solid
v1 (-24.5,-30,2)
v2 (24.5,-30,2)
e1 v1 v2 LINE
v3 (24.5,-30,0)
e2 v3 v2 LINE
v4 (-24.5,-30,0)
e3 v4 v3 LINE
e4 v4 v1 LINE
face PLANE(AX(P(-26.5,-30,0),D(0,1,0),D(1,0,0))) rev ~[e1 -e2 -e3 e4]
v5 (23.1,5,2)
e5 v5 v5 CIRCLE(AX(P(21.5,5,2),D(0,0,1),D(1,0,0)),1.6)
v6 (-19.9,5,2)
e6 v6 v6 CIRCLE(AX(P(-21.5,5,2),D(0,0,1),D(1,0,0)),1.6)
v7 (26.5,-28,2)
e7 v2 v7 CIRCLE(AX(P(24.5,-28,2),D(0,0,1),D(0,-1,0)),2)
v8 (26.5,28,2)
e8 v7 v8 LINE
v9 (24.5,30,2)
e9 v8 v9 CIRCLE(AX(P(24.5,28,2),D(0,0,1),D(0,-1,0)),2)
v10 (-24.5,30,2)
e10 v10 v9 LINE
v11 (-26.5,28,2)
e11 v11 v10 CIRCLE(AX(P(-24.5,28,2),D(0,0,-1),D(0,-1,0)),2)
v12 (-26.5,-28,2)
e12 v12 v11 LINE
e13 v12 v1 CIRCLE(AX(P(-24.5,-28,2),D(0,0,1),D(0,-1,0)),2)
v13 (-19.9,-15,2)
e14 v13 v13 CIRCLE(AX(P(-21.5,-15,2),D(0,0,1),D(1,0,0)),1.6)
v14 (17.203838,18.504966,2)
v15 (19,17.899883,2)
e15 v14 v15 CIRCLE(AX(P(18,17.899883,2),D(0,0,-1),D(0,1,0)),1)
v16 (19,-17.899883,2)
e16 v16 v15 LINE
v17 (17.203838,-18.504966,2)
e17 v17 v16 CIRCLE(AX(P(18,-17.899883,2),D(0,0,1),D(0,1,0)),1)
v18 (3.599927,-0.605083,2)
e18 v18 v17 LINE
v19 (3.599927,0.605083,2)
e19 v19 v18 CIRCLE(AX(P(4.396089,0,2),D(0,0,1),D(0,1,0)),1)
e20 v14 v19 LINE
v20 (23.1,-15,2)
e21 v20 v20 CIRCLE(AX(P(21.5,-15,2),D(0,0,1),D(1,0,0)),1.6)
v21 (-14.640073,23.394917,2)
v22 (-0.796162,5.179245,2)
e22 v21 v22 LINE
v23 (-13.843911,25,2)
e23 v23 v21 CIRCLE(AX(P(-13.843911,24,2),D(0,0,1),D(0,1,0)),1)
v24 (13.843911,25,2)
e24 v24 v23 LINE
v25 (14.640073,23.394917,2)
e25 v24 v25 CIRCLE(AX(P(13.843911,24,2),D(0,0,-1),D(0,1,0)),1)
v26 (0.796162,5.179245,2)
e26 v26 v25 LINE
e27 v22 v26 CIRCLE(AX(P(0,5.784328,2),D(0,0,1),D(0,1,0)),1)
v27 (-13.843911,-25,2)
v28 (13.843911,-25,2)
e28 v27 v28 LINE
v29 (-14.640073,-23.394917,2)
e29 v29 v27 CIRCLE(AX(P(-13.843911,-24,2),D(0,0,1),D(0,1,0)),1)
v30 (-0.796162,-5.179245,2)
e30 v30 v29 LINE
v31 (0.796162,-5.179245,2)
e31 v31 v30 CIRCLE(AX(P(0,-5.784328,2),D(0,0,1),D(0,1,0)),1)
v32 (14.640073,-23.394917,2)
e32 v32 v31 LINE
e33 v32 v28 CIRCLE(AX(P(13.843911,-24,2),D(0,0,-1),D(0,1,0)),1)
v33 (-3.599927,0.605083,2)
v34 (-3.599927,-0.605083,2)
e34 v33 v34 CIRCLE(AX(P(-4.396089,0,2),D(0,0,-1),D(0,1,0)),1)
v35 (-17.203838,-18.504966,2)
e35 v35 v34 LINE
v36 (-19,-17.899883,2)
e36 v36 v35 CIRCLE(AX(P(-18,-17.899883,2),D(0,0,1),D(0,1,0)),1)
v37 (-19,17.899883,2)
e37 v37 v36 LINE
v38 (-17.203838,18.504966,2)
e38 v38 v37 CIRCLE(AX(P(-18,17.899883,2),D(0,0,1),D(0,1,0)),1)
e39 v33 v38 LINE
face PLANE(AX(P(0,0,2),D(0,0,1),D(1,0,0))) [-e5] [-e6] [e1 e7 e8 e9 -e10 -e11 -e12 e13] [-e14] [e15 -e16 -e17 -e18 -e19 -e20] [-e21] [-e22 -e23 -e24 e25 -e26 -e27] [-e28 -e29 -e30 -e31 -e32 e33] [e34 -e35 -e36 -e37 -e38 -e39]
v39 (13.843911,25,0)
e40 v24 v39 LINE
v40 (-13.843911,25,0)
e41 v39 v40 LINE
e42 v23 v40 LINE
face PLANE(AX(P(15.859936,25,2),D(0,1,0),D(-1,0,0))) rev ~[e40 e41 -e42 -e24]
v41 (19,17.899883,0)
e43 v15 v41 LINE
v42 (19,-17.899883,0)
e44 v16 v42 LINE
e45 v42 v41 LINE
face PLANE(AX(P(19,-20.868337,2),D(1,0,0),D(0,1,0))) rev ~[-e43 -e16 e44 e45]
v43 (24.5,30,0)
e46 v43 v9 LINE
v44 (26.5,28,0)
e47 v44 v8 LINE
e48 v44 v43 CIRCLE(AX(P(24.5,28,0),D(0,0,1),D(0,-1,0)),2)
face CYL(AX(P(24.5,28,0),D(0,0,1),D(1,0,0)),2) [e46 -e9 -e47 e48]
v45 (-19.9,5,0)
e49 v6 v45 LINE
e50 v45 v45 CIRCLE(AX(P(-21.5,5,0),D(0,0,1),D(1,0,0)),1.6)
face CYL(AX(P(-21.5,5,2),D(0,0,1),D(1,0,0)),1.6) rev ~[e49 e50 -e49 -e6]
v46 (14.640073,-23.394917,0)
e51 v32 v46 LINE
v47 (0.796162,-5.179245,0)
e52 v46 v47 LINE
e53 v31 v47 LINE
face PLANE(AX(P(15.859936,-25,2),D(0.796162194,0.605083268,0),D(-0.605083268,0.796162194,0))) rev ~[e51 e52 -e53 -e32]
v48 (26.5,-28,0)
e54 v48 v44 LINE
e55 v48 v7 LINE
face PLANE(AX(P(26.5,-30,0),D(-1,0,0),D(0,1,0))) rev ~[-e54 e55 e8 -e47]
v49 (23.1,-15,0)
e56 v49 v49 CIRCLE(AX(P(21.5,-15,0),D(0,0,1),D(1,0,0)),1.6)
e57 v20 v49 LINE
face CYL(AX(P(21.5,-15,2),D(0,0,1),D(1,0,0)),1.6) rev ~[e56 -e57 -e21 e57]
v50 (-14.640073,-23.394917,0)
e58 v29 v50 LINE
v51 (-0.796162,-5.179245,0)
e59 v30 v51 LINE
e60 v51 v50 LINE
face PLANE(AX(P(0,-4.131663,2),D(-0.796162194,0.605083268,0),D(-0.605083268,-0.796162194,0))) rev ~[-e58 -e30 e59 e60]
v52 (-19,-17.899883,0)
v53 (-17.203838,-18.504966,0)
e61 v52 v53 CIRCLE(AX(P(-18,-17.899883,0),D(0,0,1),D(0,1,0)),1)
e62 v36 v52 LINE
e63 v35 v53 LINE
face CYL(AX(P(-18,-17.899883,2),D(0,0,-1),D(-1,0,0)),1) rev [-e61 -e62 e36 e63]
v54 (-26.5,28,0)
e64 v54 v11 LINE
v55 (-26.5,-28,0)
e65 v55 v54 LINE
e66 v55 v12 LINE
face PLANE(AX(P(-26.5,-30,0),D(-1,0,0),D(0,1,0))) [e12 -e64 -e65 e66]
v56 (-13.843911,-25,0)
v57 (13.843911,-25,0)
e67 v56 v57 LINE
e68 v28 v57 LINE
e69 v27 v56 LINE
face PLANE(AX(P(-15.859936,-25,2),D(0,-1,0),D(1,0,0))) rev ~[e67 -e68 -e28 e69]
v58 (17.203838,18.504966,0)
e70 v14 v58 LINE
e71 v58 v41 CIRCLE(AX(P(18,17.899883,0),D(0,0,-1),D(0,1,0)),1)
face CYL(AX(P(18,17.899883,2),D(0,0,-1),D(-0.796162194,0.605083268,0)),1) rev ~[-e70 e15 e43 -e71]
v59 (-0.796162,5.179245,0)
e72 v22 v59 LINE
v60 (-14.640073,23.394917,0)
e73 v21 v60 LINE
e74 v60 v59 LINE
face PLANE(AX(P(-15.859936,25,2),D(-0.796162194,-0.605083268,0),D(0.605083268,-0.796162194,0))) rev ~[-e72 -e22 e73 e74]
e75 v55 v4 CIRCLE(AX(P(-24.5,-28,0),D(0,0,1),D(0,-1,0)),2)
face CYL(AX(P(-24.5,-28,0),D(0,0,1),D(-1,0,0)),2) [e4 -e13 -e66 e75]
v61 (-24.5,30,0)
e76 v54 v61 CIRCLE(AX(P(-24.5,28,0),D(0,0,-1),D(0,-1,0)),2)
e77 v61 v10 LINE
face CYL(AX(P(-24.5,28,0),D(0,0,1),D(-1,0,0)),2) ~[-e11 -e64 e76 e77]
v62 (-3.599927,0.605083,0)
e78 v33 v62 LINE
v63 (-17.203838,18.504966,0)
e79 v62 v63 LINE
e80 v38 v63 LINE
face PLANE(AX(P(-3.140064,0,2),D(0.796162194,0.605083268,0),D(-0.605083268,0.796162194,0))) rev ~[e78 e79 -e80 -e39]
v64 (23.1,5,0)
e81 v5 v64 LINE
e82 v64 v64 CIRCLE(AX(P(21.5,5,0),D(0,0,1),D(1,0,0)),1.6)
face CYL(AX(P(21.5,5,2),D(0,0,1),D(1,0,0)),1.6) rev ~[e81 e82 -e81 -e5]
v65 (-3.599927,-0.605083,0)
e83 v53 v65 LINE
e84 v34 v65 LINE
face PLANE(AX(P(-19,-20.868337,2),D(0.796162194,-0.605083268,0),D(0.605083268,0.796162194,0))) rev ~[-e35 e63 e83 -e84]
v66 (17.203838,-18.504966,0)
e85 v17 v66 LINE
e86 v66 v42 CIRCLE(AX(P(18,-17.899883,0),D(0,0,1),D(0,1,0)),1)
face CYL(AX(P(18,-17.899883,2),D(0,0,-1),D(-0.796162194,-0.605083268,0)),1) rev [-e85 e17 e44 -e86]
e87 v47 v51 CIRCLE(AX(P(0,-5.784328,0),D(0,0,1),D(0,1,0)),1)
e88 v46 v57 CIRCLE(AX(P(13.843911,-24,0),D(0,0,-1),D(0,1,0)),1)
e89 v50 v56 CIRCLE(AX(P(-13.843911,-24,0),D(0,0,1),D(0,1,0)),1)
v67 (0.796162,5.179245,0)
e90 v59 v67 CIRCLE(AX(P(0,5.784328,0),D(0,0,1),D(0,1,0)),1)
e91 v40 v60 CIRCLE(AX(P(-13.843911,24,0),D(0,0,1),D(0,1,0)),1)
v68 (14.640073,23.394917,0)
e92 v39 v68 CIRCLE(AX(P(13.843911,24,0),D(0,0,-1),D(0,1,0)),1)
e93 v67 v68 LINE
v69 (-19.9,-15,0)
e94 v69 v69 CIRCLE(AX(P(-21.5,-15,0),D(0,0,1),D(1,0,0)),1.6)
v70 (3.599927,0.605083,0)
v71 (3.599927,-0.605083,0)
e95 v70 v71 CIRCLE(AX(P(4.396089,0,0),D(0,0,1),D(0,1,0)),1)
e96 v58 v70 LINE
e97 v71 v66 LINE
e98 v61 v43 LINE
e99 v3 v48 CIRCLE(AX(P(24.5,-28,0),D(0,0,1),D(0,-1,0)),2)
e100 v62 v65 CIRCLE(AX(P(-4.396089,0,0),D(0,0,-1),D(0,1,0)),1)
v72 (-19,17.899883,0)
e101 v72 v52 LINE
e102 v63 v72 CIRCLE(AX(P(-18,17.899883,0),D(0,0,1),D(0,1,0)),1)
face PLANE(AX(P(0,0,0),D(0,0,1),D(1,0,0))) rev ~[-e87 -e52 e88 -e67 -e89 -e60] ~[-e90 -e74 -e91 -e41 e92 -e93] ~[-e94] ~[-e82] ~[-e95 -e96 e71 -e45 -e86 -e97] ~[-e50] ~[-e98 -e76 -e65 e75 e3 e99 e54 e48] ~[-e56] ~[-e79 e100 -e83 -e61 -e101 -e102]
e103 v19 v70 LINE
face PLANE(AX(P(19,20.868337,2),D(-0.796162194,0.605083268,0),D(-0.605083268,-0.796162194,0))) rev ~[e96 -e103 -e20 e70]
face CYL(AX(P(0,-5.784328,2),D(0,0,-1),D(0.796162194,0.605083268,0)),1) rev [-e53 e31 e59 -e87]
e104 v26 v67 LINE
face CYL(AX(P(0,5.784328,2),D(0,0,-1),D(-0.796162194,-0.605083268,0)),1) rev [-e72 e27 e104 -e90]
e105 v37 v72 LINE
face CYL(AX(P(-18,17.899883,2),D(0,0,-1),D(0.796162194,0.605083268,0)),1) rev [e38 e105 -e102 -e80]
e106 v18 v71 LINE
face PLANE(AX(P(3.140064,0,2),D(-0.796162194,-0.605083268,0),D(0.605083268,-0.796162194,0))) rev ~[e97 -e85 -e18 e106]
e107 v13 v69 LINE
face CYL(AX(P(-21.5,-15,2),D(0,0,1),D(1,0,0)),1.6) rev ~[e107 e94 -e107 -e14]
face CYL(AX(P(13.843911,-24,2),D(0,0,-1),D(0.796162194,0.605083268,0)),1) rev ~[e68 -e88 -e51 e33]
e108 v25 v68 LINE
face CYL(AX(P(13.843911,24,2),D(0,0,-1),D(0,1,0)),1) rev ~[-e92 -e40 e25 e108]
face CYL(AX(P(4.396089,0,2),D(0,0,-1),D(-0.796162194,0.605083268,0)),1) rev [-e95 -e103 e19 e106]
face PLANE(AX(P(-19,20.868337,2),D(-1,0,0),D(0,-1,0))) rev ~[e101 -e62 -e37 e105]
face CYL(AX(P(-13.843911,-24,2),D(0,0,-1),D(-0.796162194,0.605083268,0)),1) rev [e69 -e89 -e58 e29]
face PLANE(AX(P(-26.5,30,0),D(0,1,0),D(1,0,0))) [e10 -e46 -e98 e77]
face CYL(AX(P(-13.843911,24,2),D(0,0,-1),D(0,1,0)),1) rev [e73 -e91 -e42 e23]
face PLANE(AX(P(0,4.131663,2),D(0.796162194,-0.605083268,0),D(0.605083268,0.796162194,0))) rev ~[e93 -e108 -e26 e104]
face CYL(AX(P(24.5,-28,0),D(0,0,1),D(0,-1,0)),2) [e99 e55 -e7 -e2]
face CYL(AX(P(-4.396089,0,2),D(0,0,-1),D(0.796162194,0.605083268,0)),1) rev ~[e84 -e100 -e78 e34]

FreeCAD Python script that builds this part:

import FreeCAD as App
import Part
import Sketcher
from FreeCAD import Vector
Q = App.Units.Quantity


def edges_at(feature, points):
    """Names of the edges that pass closest to the given points."""
    edges = feature.Shape.Edges
    near = lambda p: min(range(len(edges)), key=lambda i: edges[i].distToShape(Part.Vertex(*p))[0])
    return sorted({f"Edge{near(p) + 1}" for p in points})


def add_polygon(sketch, points):
    """Adds a closed chain of lines whose ends are joined by coincident constraints."""
    first, n = sketch.GeometryCount, len(points)
    for a, b in zip(points, points[1:] + points[:1]):
        sketch.addGeometry(Part.LineSegment(App.Vector(*a, 0), App.Vector(*b, 0)), False)
    for i in range(n):
        sketch.addConstraint(Sketcher.Constraint("Coincident", first + i, 2, first + (i + 1) % n, 1))

doc = App.newDocument("Part")
body = doc.addObject("PartDesign::Body", "Body")

sketch1 = body.newObject("Sketcher::SketchObject", "Sketch")
sketch1.AttachmentSupport = (doc.getObject("XY_Plane"), [""])
sketch1.MapMode = "FlatFace"
add_polygon(sketch1, [(-26, 30), (-26, -30), (26, -30), (26, 30)])
sketch1.addConstraint(Sketcher.Constraint("Vertical", 0))
sketch1.addConstraint(Sketcher.Constraint("Horizontal", 1))
sketch1.addConstraint(Sketcher.Constraint("Vertical", 2))
sketch1.addConstraint(Sketcher.Constraint("Horizontal", 3))
sketch1.addConstraint(Sketcher.Constraint("Symmetric", 0, 2, 2, 2, -1, 1))
sketch1.addConstraint(Sketcher.Constraint("DistanceX", 1, 1, 1, 2, Q("53 mm")))
sketch1.addConstraint(Sketcher.Constraint("DistanceY", 0, 2, 0, 1, Q("60 mm")))
pad1 = body.newObject("PartDesign::Pad", "Pad")
pad1.Profile = sketch1
pad1.Length = 2
doc.recompute()

fillet = body.newObject("PartDesign::Fillet", "Fillet")
fillet.Base = (pad1, edges_at(pad1, [
    (26.5, -30, 1),
    (-26.5, -30, 1),
    (-26.5, 30, 1),
    (26.5, 30, 1),
]))
fillet.Radius = 2

sketch2 = body.newObject("Sketcher::SketchObject", "Sketch001")
sketch2.AttachmentSupport = (doc.getObject("XY_Plane"), [""])
sketch2.MapMode = "FlatFace"
sketch2.AttachmentOffset = App.Placement(Vector(0, 0, 2), App.Rotation())
sketch2.addGeometry(Part.Circle(Vector(21.5, 5, 0), Vector(0, 0, 1), 1.6), False)
sketch2.addGeometry(Part.Circle(Vector(21.5, -15, 0), Vector(0, 0, 1), 1.6), False)
sketch2.addGeometry(Part.Circle(Vector(-21.5, 5, 0), Vector(0, 0, 1), 1.6), False)
sketch2.addGeometry(Part.Circle(Vector(-21.5, -15, 0), Vector(0, 0, 1), 1.6), False)
sketch2.addConstraint(Sketcher.Constraint("Equal", 0, 1))
sketch2.addConstraint(Sketcher.Constraint("Equal", 1, 2))
sketch2.addConstraint(Sketcher.Constraint("Equal", 2, 3))
sketch2.addConstraint(Sketcher.Constraint("Symmetric", 0, 3, 2, 3, -2))
sketch2.addConstraint(Sketcher.Constraint("Symmetric", 1, 3, 3, 3, -2))
sketch2.addConstraint(Sketcher.Constraint("Vertical", 0, 3, 1, 3))
sketch2.addConstraint(Sketcher.Constraint("Diameter", 0, Q("3.2 mm")))
sketch2.addConstraint(Sketcher.Constraint("DistanceY", -1, 1, 0, 3, Q("5 mm")))
sketch2.addConstraint(Sketcher.Constraint("DistanceY", 1, 3, -1, 1, Q("15 mm")))
sketch2.addConstraint(Sketcher.Constraint("DistanceX", 2, 3, 0, 3, Q("43 mm")))
pocket1 = body.newObject("PartDesign::Pocket", "Pocket")
pocket1.Profile = sketch2
pocket1.Type = "ThroughAll"

sketch3 = body.newObject("Sketcher::SketchObject", "Sketch002")
sketch3.AttachmentSupport = (doc.getObject("XY_Plane"), [""])
sketch3.MapMode = "FlatFace"
sketch3.AttachmentOffset = App.Placement(Vector(0, 0, 2), App.Rotation())
add_polygon(sketch3, [(-3, 0), (-19, 21), (-19, -21)])
add_polygon(sketch3, [(16, -25), (0, -4), (-16, -25)])
add_polygon(sketch3, [(19, 21), (3, 0), (19, -21)])
add_polygon(sketch3, [(16, 25), (-16, 25), (0, 4)])
sketch3.addConstraint(Sketcher.Constraint("Vertical", 1))
sketch3.addConstraint(Sketcher.Constraint("Horizontal", 5))
sketch3.addConstraint(Sketcher.Constraint("Vertical", 8))
sketch3.addConstraint(Sketcher.Constraint("Horizontal", 9))
sketch3.addConstraint(Sketcher.Constraint("Symmetric", 2, 2, 6, 2, -1, 1))
sketch3.addConstraint(Sketcher.Constraint("Symmetric", 0, 2, 7, 2, -1, 1))
sketch3.addConstraint(Sketcher.Constraint("Symmetric", 5, 2, 9, 2, -1, 1))
sketch3.addConstraint(Sketcher.Constraint("Symmetric", 3, 2, 10, 2, -1, 1))
sketch3.addConstraint(Sketcher.Constraint("PointOnObject", 2, 2, -1))
sketch3.addConstraint(Sketcher.Constraint("PointOnObject", 3, 2, -2))
sketch3.addConstraint(Sketcher.Constraint("Parallel", 0, 3))
sketch3.addConstraint(Sketcher.Constraint("Parallel", 2, 4))
sketch3.addConstraint(Sketcher.Constraint("Parallel", 4, 6))
sketch3.addConstraint(Sketcher.Constraint("Parallel", 6, 11))
sketch3.addConstraint(Sketcher.Constraint("Horizontal", 1, 2, 7, 2))
sketch3.addConstraint(Sketcher.Constraint("Equal", 2, 3))
sketch3.addConstraint(Sketcher.Constraint("DistanceX", 0, 2, -1, 1, Q("19 mm")))
sketch3.addConstraint(Sketcher.Constraint("DistanceY", 4, 2, -1, 1, Q("25 mm")))
sketch3.addConstraint(Sketcher.Constraint("DistanceX", 5, 1, 5, 2, Q("31.719873 mm")))
sketch3.addConstraint(Sketcher.Constraint("DistanceY", 1, 2, 1, 1, Q("41.736674 mm")))
pocket2 = body.newObject("PartDesign::Pocket", "Pocket001")
pocket2.Profile = sketch3
pocket2.Type = "ThroughAll"
doc.recompute()

fillet2 = body.newObject("PartDesign::Fillet", "Fillet001")
fillet2.Base = (pocket2, edges_at(pocket2, [
    (3.14, 0, 1),
    (19, 20.868, 1),
    (19, -20.868, 1),
    (0, -4.132, 1),
    (15.86, -25, 1),
    (-15.86, -25, 1),
    (-15.86, 25, 1),
    (15.86, 25, 1),
    (0, 4.132, 1),
    (-19, 20.868, 1),
    (-3.14, 0, 1),
    (-19, -20.868, 1),
]))
fillet2.Radius = 1

doc.recompute()
